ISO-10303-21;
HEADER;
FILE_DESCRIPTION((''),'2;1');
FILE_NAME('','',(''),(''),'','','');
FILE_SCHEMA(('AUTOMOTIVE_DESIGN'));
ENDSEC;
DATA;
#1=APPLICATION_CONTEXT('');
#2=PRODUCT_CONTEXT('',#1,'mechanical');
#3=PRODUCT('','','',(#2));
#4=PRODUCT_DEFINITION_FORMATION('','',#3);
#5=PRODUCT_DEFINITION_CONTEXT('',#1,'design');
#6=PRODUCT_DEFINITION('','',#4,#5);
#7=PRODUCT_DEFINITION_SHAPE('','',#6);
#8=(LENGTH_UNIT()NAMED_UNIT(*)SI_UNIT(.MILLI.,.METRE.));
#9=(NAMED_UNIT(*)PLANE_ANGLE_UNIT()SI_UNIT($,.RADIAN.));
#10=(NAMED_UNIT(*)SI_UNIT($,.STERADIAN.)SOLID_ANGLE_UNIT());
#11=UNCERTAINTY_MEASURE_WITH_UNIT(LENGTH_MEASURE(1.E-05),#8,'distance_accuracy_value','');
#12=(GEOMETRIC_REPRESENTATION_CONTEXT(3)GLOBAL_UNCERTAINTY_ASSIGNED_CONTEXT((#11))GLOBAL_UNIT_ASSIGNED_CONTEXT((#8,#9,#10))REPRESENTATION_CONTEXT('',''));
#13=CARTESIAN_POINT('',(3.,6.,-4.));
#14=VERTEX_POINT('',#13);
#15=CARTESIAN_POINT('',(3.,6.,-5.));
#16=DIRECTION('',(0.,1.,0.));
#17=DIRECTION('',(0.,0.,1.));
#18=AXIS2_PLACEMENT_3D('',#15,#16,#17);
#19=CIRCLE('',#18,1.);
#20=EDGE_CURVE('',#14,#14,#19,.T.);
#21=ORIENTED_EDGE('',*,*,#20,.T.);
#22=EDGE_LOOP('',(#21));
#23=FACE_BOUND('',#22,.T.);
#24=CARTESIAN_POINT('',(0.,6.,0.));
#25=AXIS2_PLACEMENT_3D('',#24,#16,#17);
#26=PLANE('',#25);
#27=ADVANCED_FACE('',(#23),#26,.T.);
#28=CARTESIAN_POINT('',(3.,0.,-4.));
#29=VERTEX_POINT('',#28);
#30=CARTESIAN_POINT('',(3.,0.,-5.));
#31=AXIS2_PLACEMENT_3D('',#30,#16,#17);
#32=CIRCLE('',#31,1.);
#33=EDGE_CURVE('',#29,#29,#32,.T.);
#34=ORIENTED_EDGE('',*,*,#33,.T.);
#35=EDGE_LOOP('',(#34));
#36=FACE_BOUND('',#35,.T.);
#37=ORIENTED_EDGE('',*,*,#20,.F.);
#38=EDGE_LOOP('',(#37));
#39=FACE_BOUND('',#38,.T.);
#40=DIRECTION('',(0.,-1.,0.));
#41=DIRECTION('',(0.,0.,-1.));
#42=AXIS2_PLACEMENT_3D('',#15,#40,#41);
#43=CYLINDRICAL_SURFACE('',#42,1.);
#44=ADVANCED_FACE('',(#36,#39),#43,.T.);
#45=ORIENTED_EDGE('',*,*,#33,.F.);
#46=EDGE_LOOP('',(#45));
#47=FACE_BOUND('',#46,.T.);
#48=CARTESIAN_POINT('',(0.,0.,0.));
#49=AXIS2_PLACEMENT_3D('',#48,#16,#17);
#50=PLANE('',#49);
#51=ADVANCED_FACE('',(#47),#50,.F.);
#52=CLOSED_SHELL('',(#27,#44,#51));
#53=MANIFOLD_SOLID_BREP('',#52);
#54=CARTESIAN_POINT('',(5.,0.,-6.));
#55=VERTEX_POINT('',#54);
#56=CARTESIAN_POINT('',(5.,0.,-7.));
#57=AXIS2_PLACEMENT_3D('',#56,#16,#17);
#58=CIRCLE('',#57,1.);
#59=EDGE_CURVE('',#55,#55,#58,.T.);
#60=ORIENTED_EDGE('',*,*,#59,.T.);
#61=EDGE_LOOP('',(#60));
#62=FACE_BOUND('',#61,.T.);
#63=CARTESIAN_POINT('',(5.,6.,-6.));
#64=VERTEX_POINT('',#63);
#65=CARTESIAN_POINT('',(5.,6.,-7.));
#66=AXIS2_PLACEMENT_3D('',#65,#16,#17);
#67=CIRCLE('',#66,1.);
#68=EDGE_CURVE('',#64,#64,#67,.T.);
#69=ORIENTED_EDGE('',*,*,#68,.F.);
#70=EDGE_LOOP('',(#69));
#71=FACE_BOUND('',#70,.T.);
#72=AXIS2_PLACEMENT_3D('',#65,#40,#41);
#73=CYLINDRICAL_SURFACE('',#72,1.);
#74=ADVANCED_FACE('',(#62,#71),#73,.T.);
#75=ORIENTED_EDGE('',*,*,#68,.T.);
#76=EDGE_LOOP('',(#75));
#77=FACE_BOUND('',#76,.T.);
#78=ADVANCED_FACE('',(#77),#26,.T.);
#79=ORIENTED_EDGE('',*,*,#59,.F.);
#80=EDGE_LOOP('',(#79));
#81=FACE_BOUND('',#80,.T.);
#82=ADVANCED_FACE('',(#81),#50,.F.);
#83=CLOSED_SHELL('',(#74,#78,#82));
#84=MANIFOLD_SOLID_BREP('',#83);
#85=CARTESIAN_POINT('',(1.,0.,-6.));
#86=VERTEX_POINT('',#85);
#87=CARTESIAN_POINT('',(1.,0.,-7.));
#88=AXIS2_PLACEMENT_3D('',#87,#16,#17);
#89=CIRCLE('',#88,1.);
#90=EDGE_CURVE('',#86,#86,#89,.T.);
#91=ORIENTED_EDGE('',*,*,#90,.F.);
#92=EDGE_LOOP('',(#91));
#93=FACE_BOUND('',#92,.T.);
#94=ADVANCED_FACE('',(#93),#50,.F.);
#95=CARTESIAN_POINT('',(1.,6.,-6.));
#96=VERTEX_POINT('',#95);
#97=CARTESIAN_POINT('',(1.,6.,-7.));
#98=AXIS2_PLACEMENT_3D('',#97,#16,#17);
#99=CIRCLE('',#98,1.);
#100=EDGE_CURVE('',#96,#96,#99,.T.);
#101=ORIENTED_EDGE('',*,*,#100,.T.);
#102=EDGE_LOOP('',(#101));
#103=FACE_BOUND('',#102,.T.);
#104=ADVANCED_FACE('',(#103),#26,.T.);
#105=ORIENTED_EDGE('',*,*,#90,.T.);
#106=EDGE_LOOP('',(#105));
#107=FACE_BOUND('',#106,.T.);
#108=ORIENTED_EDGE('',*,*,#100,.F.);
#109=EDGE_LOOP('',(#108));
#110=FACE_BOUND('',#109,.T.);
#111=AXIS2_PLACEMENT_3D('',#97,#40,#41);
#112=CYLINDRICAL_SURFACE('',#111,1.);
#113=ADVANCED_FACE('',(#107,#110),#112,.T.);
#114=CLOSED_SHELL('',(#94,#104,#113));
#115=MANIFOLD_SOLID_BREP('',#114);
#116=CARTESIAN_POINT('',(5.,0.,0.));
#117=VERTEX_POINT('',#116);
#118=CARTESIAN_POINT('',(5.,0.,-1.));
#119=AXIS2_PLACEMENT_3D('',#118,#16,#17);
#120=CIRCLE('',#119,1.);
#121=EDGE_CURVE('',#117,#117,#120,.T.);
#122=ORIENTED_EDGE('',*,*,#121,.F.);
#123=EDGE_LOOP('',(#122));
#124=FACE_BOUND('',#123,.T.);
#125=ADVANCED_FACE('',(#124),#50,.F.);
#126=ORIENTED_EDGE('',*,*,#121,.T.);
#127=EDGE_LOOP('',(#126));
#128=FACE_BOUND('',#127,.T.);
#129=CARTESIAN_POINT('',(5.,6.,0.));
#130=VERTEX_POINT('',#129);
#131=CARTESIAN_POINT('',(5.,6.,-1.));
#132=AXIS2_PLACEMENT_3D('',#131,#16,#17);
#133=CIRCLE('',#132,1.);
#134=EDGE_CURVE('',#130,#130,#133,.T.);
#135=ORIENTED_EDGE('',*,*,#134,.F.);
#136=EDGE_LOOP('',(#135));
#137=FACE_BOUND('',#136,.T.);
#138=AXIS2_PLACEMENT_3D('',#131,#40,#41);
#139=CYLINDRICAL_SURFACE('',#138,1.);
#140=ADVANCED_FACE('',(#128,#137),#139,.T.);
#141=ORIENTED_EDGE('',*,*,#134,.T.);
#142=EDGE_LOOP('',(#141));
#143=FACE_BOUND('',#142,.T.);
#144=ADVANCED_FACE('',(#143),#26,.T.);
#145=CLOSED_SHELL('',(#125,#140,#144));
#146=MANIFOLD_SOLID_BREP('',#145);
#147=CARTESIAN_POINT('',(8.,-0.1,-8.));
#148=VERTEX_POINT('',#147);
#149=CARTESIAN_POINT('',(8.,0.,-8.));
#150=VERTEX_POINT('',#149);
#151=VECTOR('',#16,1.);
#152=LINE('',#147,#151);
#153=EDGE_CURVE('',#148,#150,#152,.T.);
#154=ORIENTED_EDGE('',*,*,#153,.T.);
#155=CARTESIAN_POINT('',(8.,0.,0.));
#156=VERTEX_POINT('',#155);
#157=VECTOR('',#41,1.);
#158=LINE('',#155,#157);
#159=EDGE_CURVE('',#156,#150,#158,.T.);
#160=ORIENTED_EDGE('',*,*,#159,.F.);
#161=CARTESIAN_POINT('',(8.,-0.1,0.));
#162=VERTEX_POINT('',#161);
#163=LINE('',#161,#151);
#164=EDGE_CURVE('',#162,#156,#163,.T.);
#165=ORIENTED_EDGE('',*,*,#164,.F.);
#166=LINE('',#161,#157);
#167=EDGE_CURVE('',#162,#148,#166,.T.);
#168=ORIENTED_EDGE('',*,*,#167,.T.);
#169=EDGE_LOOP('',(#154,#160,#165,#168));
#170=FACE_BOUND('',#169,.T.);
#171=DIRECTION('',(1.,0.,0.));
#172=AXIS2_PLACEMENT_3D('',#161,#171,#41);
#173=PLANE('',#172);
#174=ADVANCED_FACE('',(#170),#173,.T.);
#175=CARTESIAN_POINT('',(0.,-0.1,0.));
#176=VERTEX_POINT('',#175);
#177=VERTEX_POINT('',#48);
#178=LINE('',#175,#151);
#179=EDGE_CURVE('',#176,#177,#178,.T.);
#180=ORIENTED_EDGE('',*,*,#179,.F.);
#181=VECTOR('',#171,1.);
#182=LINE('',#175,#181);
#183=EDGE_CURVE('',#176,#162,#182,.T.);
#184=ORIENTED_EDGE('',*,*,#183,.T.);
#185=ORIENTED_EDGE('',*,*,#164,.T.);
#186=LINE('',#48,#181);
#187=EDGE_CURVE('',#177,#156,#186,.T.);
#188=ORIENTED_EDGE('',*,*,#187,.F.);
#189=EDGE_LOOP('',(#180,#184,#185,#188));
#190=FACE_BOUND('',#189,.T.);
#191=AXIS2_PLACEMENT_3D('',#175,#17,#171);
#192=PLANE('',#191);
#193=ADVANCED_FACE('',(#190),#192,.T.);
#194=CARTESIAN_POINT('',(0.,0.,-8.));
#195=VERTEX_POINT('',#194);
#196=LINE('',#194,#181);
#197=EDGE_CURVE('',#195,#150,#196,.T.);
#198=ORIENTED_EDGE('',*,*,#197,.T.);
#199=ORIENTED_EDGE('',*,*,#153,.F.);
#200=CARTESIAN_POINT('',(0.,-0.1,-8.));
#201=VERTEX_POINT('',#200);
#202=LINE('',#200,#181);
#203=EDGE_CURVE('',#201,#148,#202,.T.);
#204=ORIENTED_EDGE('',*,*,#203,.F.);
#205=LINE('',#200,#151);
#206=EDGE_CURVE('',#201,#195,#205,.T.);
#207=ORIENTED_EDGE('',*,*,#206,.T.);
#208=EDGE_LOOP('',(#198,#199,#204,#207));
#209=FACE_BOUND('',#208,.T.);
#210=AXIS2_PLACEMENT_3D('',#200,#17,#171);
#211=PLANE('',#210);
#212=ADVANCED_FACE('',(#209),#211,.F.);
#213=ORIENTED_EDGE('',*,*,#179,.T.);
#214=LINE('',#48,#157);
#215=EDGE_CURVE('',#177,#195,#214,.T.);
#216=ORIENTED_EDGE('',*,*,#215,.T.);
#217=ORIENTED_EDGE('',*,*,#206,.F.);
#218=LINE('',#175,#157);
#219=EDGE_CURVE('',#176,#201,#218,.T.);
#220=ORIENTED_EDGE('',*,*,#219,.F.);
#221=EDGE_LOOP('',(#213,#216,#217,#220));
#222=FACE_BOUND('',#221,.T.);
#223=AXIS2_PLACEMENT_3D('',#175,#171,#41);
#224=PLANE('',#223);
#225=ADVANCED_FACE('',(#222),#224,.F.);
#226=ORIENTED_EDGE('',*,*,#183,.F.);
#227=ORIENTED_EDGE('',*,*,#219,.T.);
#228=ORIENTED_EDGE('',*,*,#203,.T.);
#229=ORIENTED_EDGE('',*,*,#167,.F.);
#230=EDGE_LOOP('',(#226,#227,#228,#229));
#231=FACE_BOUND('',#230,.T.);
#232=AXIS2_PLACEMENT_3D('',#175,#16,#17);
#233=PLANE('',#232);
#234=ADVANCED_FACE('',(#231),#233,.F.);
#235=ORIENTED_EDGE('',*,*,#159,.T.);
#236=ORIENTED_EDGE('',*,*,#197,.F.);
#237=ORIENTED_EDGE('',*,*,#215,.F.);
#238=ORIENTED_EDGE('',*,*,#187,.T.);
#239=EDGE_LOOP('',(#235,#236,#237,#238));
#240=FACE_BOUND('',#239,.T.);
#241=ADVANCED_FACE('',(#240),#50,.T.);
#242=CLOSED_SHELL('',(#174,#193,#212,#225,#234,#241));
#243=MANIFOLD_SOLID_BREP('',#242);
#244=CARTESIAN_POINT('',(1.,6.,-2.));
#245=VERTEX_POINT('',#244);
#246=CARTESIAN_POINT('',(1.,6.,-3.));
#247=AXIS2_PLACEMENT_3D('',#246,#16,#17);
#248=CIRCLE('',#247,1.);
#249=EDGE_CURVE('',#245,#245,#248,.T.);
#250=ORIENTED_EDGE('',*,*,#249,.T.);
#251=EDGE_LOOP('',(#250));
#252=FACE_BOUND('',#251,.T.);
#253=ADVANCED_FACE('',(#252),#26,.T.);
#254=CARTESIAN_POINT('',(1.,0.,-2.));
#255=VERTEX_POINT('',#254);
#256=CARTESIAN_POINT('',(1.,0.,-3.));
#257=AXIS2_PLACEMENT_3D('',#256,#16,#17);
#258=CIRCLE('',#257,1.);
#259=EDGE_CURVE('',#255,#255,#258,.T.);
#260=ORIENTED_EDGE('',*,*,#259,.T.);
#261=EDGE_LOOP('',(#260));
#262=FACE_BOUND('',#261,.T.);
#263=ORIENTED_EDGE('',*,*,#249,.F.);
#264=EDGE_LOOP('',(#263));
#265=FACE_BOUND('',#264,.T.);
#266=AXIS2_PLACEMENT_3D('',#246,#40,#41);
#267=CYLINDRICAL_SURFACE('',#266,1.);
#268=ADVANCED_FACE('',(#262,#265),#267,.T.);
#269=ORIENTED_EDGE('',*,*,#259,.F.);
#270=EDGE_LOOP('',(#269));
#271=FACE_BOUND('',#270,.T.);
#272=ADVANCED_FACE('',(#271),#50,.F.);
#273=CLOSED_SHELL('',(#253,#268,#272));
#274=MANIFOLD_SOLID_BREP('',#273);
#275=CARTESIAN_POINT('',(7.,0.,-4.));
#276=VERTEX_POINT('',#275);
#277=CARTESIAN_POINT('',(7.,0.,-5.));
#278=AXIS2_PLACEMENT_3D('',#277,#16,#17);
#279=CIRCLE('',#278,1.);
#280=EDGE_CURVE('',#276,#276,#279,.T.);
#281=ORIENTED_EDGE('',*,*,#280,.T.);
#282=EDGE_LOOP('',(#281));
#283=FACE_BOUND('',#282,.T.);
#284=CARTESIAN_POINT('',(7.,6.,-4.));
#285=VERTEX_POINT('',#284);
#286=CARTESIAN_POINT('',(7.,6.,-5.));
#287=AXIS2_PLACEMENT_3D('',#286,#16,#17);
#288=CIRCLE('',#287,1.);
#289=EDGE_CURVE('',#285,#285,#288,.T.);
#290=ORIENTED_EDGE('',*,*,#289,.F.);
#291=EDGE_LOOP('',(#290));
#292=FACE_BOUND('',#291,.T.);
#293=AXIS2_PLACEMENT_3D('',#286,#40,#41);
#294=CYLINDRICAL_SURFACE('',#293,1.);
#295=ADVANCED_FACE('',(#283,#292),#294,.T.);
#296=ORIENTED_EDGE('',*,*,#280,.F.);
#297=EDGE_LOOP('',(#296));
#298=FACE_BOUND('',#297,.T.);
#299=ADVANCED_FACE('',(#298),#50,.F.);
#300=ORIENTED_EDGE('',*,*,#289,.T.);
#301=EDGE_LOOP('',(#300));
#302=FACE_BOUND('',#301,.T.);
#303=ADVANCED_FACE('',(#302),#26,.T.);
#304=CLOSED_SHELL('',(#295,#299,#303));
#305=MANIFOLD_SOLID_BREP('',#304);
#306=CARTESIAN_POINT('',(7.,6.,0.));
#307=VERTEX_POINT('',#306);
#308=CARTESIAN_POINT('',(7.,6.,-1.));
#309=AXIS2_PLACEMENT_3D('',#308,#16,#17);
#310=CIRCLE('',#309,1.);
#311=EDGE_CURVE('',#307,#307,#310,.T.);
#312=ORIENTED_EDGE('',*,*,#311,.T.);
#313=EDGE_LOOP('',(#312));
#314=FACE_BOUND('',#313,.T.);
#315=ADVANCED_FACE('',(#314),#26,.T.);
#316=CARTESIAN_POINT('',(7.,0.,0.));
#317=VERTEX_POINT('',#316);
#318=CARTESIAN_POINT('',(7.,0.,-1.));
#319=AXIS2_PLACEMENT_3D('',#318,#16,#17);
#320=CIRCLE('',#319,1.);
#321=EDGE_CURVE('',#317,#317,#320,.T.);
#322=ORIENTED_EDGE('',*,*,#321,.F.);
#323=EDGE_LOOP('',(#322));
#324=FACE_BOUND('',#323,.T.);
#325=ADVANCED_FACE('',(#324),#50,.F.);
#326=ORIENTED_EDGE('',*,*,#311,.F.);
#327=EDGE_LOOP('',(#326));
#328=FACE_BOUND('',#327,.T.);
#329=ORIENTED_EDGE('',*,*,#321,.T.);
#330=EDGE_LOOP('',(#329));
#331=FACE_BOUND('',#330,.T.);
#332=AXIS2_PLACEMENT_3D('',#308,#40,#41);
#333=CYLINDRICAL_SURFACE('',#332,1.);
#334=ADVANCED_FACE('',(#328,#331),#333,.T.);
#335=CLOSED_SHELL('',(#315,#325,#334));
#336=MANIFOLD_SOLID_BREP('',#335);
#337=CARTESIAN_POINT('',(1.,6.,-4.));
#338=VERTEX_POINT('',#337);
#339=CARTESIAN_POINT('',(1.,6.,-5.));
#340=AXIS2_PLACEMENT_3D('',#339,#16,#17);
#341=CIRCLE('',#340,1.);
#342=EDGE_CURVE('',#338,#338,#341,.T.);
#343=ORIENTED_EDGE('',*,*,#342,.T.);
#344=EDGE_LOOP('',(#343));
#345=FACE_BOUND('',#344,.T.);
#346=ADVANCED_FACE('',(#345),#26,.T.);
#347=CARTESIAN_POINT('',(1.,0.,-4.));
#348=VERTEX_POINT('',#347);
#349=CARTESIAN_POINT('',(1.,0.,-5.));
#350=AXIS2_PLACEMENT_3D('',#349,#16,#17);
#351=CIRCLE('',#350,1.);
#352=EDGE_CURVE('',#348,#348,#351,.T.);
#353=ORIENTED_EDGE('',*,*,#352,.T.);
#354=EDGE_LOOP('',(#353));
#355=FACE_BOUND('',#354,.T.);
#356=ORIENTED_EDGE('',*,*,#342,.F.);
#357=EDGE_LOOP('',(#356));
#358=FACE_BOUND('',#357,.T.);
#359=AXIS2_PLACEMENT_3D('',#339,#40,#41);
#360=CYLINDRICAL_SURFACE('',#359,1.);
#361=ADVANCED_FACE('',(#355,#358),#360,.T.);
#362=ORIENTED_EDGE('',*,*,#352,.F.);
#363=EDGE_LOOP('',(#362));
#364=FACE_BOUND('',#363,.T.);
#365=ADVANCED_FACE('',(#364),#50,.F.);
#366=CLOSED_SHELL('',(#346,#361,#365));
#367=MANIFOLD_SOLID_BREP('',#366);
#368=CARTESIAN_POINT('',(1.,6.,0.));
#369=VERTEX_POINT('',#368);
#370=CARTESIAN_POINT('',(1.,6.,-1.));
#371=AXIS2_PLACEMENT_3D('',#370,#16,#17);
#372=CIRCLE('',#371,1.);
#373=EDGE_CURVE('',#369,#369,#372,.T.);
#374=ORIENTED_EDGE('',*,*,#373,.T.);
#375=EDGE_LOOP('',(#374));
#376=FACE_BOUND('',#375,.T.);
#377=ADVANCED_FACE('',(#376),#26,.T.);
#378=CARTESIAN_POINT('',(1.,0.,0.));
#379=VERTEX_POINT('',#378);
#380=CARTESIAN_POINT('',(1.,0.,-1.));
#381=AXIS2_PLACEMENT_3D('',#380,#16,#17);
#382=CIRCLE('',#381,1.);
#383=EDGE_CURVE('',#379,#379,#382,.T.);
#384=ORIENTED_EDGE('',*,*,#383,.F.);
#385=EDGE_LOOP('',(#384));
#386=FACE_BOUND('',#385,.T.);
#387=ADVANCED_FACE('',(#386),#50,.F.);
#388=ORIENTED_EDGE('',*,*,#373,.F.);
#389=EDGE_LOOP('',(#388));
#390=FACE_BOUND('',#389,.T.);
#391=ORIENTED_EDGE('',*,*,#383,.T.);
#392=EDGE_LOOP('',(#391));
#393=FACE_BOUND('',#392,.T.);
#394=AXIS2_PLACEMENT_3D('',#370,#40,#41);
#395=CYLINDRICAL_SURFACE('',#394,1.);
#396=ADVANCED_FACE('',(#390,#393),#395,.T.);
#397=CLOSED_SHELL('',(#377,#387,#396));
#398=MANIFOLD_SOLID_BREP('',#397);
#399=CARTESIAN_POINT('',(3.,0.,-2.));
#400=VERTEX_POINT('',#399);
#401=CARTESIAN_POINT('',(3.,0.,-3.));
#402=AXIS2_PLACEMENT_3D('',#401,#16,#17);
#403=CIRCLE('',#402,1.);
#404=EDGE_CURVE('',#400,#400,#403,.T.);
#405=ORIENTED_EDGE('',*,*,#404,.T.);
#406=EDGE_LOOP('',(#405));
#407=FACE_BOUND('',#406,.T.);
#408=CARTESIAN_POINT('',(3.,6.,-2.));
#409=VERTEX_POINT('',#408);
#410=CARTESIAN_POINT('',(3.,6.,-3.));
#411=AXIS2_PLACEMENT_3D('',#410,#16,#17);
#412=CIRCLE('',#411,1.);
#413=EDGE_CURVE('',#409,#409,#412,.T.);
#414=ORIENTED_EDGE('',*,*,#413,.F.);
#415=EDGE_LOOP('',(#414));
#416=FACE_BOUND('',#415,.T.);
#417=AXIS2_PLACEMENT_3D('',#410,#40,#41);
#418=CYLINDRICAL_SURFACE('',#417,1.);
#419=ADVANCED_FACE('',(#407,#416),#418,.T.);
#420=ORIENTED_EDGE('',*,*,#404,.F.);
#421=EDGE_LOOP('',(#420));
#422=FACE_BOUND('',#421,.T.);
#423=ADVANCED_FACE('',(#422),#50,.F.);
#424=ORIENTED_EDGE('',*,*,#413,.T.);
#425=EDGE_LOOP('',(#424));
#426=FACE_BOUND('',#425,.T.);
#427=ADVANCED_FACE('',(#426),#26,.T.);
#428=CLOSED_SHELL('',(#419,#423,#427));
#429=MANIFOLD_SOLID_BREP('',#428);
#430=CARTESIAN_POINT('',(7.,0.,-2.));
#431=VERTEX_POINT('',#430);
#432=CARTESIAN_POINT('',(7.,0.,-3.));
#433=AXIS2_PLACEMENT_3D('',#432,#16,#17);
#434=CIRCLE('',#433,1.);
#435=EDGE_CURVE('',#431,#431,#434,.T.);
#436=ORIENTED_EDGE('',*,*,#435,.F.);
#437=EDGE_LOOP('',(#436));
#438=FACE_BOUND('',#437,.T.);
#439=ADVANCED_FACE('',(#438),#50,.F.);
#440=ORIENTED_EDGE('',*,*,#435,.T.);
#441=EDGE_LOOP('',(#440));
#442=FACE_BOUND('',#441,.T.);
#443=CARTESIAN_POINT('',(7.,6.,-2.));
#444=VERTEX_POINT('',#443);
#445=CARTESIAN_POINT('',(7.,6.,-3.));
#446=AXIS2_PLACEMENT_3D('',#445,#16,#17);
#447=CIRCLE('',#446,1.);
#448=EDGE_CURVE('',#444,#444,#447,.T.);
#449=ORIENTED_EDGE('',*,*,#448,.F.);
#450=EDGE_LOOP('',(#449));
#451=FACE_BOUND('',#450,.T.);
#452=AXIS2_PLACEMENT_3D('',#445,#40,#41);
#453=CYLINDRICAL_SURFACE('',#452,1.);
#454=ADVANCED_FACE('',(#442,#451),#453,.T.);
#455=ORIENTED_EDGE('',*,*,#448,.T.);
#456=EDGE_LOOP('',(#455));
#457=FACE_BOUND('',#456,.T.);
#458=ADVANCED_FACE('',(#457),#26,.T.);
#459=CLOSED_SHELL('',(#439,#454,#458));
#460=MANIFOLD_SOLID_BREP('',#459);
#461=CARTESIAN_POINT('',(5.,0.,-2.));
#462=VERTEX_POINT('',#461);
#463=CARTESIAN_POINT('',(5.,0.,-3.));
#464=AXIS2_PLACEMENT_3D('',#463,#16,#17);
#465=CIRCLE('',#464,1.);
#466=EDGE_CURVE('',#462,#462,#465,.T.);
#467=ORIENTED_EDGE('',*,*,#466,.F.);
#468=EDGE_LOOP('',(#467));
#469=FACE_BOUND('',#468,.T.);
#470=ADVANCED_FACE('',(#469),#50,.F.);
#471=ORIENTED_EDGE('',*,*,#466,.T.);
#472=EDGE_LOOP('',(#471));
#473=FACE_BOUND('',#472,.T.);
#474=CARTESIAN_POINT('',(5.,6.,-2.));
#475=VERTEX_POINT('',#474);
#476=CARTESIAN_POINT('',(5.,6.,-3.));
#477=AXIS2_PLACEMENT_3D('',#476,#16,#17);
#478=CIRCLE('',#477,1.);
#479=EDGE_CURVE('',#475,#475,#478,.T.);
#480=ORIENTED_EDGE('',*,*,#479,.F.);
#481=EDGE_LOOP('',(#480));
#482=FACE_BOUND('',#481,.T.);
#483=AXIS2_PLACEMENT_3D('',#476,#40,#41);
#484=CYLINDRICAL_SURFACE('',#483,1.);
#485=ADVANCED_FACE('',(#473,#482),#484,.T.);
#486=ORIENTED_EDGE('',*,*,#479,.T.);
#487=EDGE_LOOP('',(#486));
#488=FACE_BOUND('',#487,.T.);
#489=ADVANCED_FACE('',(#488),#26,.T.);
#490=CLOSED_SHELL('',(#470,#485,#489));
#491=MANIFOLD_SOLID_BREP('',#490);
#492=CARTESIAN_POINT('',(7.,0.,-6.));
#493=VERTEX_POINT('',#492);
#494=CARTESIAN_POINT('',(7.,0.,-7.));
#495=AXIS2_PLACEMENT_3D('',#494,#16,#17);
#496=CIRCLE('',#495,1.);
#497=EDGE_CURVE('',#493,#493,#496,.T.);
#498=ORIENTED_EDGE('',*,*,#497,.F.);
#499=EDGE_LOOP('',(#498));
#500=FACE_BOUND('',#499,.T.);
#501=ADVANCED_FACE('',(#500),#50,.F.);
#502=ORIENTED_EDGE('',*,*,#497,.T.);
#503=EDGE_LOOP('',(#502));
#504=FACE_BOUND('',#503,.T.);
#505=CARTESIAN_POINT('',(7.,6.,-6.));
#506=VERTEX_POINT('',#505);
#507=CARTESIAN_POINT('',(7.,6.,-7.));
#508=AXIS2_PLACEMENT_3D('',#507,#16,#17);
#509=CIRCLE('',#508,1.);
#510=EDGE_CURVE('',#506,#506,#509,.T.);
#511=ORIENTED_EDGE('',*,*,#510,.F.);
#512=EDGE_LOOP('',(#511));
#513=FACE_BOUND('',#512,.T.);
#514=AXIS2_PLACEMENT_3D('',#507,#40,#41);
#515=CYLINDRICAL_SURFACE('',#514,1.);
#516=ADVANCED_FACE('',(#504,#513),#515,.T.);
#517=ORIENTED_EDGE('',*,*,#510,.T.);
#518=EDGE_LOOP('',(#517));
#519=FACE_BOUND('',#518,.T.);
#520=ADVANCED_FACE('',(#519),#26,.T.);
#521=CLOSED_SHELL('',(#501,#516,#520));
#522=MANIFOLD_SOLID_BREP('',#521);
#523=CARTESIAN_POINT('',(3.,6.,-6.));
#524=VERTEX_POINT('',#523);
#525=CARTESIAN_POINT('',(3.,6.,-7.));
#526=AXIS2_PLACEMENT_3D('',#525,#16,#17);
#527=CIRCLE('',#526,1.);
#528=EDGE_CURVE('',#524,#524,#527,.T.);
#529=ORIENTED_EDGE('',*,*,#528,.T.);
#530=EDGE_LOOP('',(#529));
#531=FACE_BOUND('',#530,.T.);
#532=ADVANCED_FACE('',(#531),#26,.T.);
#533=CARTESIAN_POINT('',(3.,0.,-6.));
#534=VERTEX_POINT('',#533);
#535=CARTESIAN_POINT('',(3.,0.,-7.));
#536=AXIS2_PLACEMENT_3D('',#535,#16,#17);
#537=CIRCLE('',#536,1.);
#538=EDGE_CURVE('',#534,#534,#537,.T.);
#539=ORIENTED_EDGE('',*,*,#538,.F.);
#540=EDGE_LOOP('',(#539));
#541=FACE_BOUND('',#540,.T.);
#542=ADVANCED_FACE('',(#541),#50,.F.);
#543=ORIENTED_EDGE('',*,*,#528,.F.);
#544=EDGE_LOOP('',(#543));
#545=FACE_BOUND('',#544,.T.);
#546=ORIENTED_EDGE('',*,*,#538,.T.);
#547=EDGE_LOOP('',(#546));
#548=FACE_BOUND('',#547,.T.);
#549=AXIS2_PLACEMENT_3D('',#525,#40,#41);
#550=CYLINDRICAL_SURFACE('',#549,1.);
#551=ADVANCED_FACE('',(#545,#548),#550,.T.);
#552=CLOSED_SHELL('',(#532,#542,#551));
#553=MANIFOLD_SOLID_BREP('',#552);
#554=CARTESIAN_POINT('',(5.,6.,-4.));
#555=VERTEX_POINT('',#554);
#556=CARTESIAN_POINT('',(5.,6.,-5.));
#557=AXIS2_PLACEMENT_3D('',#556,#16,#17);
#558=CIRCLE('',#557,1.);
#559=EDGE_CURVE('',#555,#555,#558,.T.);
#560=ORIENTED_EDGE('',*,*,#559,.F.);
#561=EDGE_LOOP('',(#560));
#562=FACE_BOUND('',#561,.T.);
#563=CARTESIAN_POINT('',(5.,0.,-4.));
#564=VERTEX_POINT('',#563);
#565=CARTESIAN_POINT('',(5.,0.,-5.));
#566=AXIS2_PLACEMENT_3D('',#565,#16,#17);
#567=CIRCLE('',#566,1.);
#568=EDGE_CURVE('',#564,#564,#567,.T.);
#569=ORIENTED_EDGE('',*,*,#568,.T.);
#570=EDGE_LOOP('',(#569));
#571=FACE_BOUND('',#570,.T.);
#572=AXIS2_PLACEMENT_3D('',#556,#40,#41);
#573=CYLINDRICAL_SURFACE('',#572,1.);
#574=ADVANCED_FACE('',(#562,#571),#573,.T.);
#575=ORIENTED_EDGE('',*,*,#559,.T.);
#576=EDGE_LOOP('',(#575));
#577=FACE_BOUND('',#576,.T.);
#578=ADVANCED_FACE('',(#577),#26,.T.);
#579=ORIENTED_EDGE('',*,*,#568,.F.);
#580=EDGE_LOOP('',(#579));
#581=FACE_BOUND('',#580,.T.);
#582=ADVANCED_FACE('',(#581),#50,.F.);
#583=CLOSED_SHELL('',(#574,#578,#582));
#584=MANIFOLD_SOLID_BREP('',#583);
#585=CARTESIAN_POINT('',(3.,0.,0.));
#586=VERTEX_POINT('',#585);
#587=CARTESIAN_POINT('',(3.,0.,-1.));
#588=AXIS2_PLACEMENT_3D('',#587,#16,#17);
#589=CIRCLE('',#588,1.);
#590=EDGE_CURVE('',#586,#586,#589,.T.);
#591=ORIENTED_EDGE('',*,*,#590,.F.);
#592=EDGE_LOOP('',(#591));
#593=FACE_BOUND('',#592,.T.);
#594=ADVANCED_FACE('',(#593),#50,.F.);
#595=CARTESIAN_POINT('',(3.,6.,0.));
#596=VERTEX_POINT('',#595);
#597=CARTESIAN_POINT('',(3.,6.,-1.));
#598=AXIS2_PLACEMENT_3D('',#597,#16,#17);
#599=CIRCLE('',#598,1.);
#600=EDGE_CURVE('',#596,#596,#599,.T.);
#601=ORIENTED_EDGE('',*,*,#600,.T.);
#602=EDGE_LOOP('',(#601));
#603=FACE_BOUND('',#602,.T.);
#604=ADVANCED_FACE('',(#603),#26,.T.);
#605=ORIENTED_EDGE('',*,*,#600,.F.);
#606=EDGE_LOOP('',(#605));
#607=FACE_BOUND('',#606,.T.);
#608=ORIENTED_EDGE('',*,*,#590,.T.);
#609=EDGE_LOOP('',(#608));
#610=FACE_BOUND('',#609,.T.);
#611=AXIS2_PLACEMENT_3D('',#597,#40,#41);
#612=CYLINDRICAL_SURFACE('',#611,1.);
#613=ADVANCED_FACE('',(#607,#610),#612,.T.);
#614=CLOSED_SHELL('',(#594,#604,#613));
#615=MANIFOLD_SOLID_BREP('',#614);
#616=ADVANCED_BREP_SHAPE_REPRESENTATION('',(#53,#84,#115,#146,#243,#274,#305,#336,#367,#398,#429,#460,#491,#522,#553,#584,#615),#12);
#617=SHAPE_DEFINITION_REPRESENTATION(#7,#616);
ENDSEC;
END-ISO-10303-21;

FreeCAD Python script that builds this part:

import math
import FreeCAD as App
import Part
import Sketcher
Q = App.Units.Quantity

doc = App.newDocument("Part")
params = doc.addObject("Spreadsheet::Sheet", "Params")
for row, (alias, value) in enumerate([
    ("sketch1_width", "8 mm"),
    ("pad1_length", "0.1 mm"),
    ("sketch2_radius", "1 mm"),
    ("pad2_length", "6 mm"),
    ("sketch3_radius", "1 mm"),
    ("pad3_length", "6 mm"),
    ("sketch4_radius", "1 mm"),
    ("pad4_length", "6 mm"),
    ("sketch5_radius", "1 mm"),
    ("pad5_length", "6 mm"),
    ("sketch6_radius", "1 mm"),
    ("pad6_length", "6 mm"),
    ("sketch7_radius", "1 mm"),
    ("pad7_length", "6 mm"),
    ("sketch8_radius", "1 mm"),
    ("pad8_length", "6 mm"),
    ("sketch9_radius", "1 mm"),
    ("pad9_length", "6 mm"),
    ("sketch10_radius", "1 mm"),
    ("pad10_length", "6 mm"),
    ("sketch11_radius", "1 mm"),
    ("pad11_length", "6 mm"),
    ("sketch12_radius", "1 mm"),
    ("pad12_length", "6 mm"),
    ("sketch13_radius", "1 mm"),
    ("pad13_length", "6 mm"),
    ("sketch14_radius", "1 mm"),
    ("pad14_length", "6 mm"),
    ("sketch15_radius", "1 mm"),
    ("pad15_length", "6 mm"),
    ("sketch16_radius", "1 mm"),
    ("pad16_length", "6 mm"),
    ("sketch17_radius", "1 mm"),
    ("pad17_length", "6 mm"),
], start=1):
    params.set(f"A{row}", alias)
    params.set(f"B{row}", "=" + value)
    params.setAlias(f"B{row}", alias)

body = doc.addObject("PartDesign::Body", "Body")

# Sketch on XZ plane
sketch1 = body.newObject("Sketcher::SketchObject", "Sketch")
sketch1.AttachmentSupport = (doc.getObject("XZ_Plane"), [""])
sketch1.MapMode = "FlatFace"
sketch1.addGeometry([
    Part.LineSegment(App.Vector(8, 0, 0), App.Vector(8, -8, 0)),
    Part.LineSegment(App.Vector(8, -8, 0), App.Vector(0, -8, 0)),
    Part.LineSegment(App.Vector(0, -8, 0), App.Vector(0, 0, 0)),
    Part.LineSegment(App.Vector(0, 0, 0), App.Vector(8, 0, 0)),
], False)
sketch1.addConstraint([
    Sketcher.Constraint("Coincident", 0, 2, 1, 1),
    Sketcher.Constraint("Coincident", 1, 2, 2, 1),
    Sketcher.Constraint("Coincident", 2, 2, 3, 1),
    Sketcher.Constraint("Coincident", 3, 2, 0, 1),
    Sketcher.Constraint("Vertical", 0),
    Sketcher.Constraint("Horizontal", 1),
    Sketcher.Constraint("Vertical", 2),
    Sketcher.Constraint("Horizontal", 3),
    Sketcher.Constraint("Coincident", 2, 2, -1, 1),
    Sketcher.Constraint("Equal", 3, 0),
    Sketcher.Constraint("DistanceX", 1, 2, 1, 1, Q("8 mm")),
])
sketch1.setExpression("Constraints[10]", "Params.sketch1_width")
pad1 = body.newObject("PartDesign::Pad", "Pad")
pad1.Profile = sketch1
pad1.setExpression("Length", "Params.pad1_length")
body2 = doc.addObject("PartDesign::Body", "Body001")

# Sketch on XZ plane
sketch2 = body2.newObject("Sketcher::SketchObject", "Sketch001")
sketch2.AttachmentSupport = (doc.getObject("XZ_Plane001"), [""])
sketch2.MapMode = "FlatFace"
sketch2.addGeometry([
    Part.ArcOfCircle(Part.Circle(App.Vector(1, -1, 0), App.Vector(0, 0, 1), 1), math.radians(-90), math.radians(0)),
    Part.ArcOfCircle(Part.Circle(App.Vector(1, -1, 0), App.Vector(0, 0, 1), 1), math.radians(0), math.radians(270)),
], False)
sketch2.addConstraint([
    Sketcher.Constraint("Tangent", 0, 1, 1, 2),
    Sketcher.Constraint("Coincident", 1, 1, 0, 2),
    Sketcher.Constraint("Horizontal", 0, 3, 1, 1),
    Sketcher.Constraint("Vertical", 1, 3, 0, 1),
    Sketcher.Constraint("Radius", 0, Q("1 mm")),
    Sketcher.Constraint("DistanceX", -1, 1, 0, 3, Q("1 mm")),
    Sketcher.Constraint("DistanceY", 0, 3, -1, 1, Q("1 mm")),
])
sketch2.setExpression("Constraints[4]", "Params.sketch2_radius")
pad2 = body2.newObject("PartDesign::Pad", "Pad001")
pad2.Profile = sketch2
pad2.setExpression("Length", "Params.pad2_length")
pad2.Reversed = True
body3 = doc.addObject("PartDesign::Body", "Body002")

# Sketch on XZ plane
sketch3 = body3.newObject("Sketcher::SketchObject", "Sketch002")
sketch3.AttachmentSupport = (doc.getObject("XZ_Plane002"), [""])
sketch3.MapMode = "FlatFace"
sketch3.addGeometry([
    Part.ArcOfCircle(Part.Circle(App.Vector(3, -1, 0), App.Vector(0, 0, 1), 1), math.radians(0), math.radians(180)),
    Part.ArcOfCircle(Part.Circle(App.Vector(3, -1, 0), App.Vector(0, 0, 1), 1), math.radians(-90), math.radians(0)),
    Part.ArcOfCircle(Part.Circle(App.Vector(3, -1, 0), App.Vector(0, 0, 1), 1), math.radians(-180), math.radians(-90)),
], False)
sketch3.addConstraint([
    Sketcher.Constraint("Tangent", 0, 1, 1, 2),
    Sketcher.Constraint("Tangent", 1, 1, 2, 2),
    Sketcher.Constraint("Tangent", 2, 1, 0, 2),
    Sketcher.Constraint("Horizontal", 2, 3, 0, 1),
    Sketcher.Constraint("Horizontal", 0, 1, 2, 1),
    Sketcher.Constraint("Vertical", 2, 3, 1, 1),
    Sketcher.Constraint("Radius", 0, Q("1 mm")),
    Sketcher.Constraint("DistanceX", -1, 1, 0, 3, Q("3 mm")),
    Sketcher.Constraint("DistanceY", 0, 3, -1, 1, Q("1 mm")),
])
sketch3.setExpression("Constraints[6]", "Params.sketch3_radius")
pad3 = body3.newObject("PartDesign::Pad", "Pad002")
pad3.Profile = sketch3
pad3.setExpression("Length", "Params.pad3_length")
pad3.Reversed = True
body4 = doc.addObject("PartDesign::Body", "Body003")

# Sketch on XZ plane
sketch4 = body4.newObject("Sketcher::SketchObject", "Sketch003")
sketch4.AttachmentSupport = (doc.getObject("XZ_Plane003"), [""])
sketch4.MapMode = "FlatFace"
sketch4.addGeometry([
    Part.ArcOfCircle(Part.Circle(App.Vector(1, -3, 0), App.Vector(0, 0, 1), 1), math.radians(0), math.radians(90)),
    Part.ArcOfCircle(Part.Circle(App.Vector(1, -3, 0), App.Vector(0, 0, 1), 1), math.radians(-90), math.radians(0)),
    Part.ArcOfCircle(Part.Circle(App.Vector(1, -3, 0), App.Vector(0, 0, 1), 1), math.radians(90), math.radians(270)),
], False)
sketch4.addConstraint([
    Sketcher.Constraint("Tangent", 0, 1, 1, 2),
    Sketcher.Constraint("Tangent", 1, 1, 2, 2),
    Sketcher.Constraint("Tangent", 2, 1, 0, 2),
    Sketcher.Constraint("Horizontal", 2, 3, 0, 1),
    Sketcher.Constraint("Vertical", 2, 3, 1, 1),
    Sketcher.Constraint("Vertical", 1, 1, 2, 1),
    Sketcher.Constraint("Radius", 0, Q("1 mm")),
    Sketcher.Constraint("DistanceX", -1, 1, 0, 3, Q("1 mm")),
    Sketcher.Constraint("DistanceY", 0, 3, -1, 1, Q("3 mm")),
])
sketch4.setExpression("Constraints[6]", "Params.sketch4_radius")
pad4 = body4.newObject("PartDesign::Pad", "Pad003")
pad4.Profile = sketch4
pad4.setExpression("Length", "Params.pad4_length")
pad4.Reversed = True
body5 = doc.addObject("PartDesign::Body", "Body004")

# Sketch on XZ plane
sketch5 = body5.newObject("Sketcher::SketchObject", "Sketch004")
sketch5.AttachmentSupport = (doc.getObject("XZ_Plane004"), [""])
sketch5.MapMode = "FlatFace"
sketch5.addGeometry([
    Part.ArcOfCircle(Part.Circle(App.Vector(5, -1, 0), App.Vector(0, 0, 1), 1), math.radians(0), math.radians(180)),
    Part.ArcOfCircle(Part.Circle(App.Vector(5, -1, 0), App.Vector(0, 0, 1), 1), math.radians(-90), math.radians(0)),
    Part.ArcOfCircle(Part.Circle(App.Vector(5, -1, 0), App.Vector(0, 0, 1), 1), math.radians(-180), math.radians(-90)),
], False)
sketch5.addConstraint([
    Sketcher.Constraint("Tangent", 0, 1, 1, 2),
    Sketcher.Constraint("Tangent", 1, 1, 2, 2),
    Sketcher.Constraint("Tangent", 2, 1, 0, 2),
    Sketcher.Constraint("Horizontal", 2, 3, 0, 1),
    Sketcher.Constraint("Horizontal", 0, 1, 2, 1),
    Sketcher.Constraint("Vertical", 2, 3, 1, 1),
    Sketcher.Constraint("Radius", 0, Q("1 mm")),
    Sketcher.Constraint("DistanceX", -1, 1, 0, 3, Q("5 mm")),
    Sketcher.Constraint("DistanceY", 0, 3, -1, 1, Q("1 mm")),
])
sketch5.setExpression("Constraints[6]", "Params.sketch5_radius")
pad5 = body5.newObject("PartDesign::Pad", "Pad004")
pad5.Profile = sketch5
pad5.setExpression("Length", "Params.pad5_length")
pad5.Reversed = True
body6 = doc.addObject("PartDesign::Body", "Body005")

# Sketch on XZ plane
sketch6 = body6.newObject("Sketcher::SketchObject", "Sketch005")
sketch6.AttachmentSupport = (doc.getObject("XZ_Plane005"), [""])
sketch6.MapMode = "FlatFace"
sketch6.addGeometry([
    Part.ArcOfCircle(Part.Circle(App.Vector(3, -3, 0), App.Vector(0, 0, 1), 1), math.radians(90), math.radians(180)),
    Part.ArcOfCircle(Part.Circle(App.Vector(3, -3, 0), App.Vector(0, 0, 1), 1), math.radians(0), math.radians(90)),
    Part.ArcOfCircle(Part.Circle(App.Vector(3, -3, 0), App.Vector(0, 0, 1), 1), math.radians(-90), math.radians(0)),
    Part.ArcOfCircle(Part.Circle(App.Vector(3, -3, 0), App.Vector(0, 0, 1), 1), math.radians(-180), math.radians(-90)),
], False)
sketch6.addConstraint([
    Sketcher.Constraint("Tangent", 0, 1, 1, 2),
    Sketcher.Constraint("Tangent", 1, 1, 2, 2),
    Sketcher.Constraint("Tangent", 2, 1, 3, 2),
    Sketcher.Constraint("Tangent", 3, 1, 0, 2),
    Sketcher.Constraint("Equal", 0, 1),
    Sketcher.Constraint("Horizontal", 3, 3, 1, 1),
    Sketcher.Constraint("Horizontal", 1, 1, 3, 1),
    Sketcher.Constraint("Vertical", 3, 3, 0, 1),
    Sketcher.Constraint("Vertical", 0, 1, 2, 1),
    Sketcher.Constraint("Radius", 0, Q("1 mm")),
    Sketcher.Constraint("DistanceX", -1, 1, 0, 3, Q("3 mm")),
    Sketcher.Constraint("DistanceY", 0, 3, -1, 1, Q("3 mm")),
])
sketch6.setExpression("Constraints[9]", "Params.sketch6_radius")
pad6 = body6.newObject("PartDesign::Pad", "Pad005")
pad6.Profile = sketch6
pad6.setExpression("Length", "Params.pad6_length")
pad6.Reversed = True
body7 = doc.addObject("PartDesign::Body", "Body006")

# Sketch on XZ plane
sketch7 = body7.newObject("Sketcher::SketchObject", "Sketch006")
sketch7.AttachmentSupport = (doc.getObject("XZ_Plane006"), [""])
sketch7.MapMode = "FlatFace"
sketch7.addGeometry([
    Part.ArcOfCircle(Part.Circle(App.Vector(1, -5, 0), App.Vector(0, 0, 1), 1), math.radians(0), math.radians(90)),
    Part.ArcOfCircle(Part.Circle(App.Vector(1, -5, 0), App.Vector(0, 0, 1), 1), math.radians(-90), math.radians(0)),
    Part.ArcOfCircle(Part.Circle(App.Vector(1, -5, 0), App.Vector(0, 0, 1), 1), math.radians(90), math.radians(270)),
], False)
sketch7.addConstraint([
    Sketcher.Constraint("Tangent", 0, 1, 1, 2),
    Sketcher.Constraint("Tangent", 1, 1, 2, 2),
    Sketcher.Constraint("Tangent", 2, 1, 0, 2),
    Sketcher.Constraint("Horizontal", 2, 3, 0, 1),
    Sketcher.Constraint("Vertical", 2, 3, 1, 1),
    Sketcher.Constraint("Vertical", 1, 1, 2, 1),
    Sketcher.Constraint("Radius", 0, Q("1 mm")),
    Sketcher.Constraint("DistanceX", -1, 1, 0, 3, Q("1 mm")),
    Sketcher.Constraint("DistanceY", 0, 3, -1, 1, Q("5 mm")),
])
sketch7.setExpression("Constraints[6]", "Params.sketch7_radius")
pad7 = body7.newObject("PartDesign::Pad", "Pad006")
pad7.Profile = sketch7
pad7.setExpression("Length", "Params.pad7_length")
pad7.Reversed = True
body8 = doc.addObject("PartDesign::Body", "Body007")

# Sketch on XZ plane
sketch8 = body8.newObject("Sketcher::SketchObject", "Sketch007")
sketch8.AttachmentSupport = (doc.getObject("XZ_Plane007"), [""])
sketch8.MapMode = "FlatFace"
sketch8.addGeometry([
    Part.ArcOfCircle(Part.Circle(App.Vector(7, -1, 0), App.Vector(0, 0, 1), 1), math.radians(-90), math.radians(180)),
    Part.ArcOfCircle(Part.Circle(App.Vector(7, -1, 0), App.Vector(0, 0, 1), 1), math.radians(-180), math.radians(-90)),
], False)
sketch8.addConstraint([
    Sketcher.Constraint("Tangent", 0, 1, 1, 2),
    Sketcher.Constraint("Coincident", 1, 1, 0, 2),
    Sketcher.Constraint("Horizontal", 0, 3, 1, 1),
    Sketcher.Constraint("Vertical", 1, 3, 0, 1),
    Sketcher.Constraint("Radius", 0, Q("1 mm")),
    Sketcher.Constraint("DistanceX", -1, 1, 0, 3, Q("7 mm")),
    Sketcher.Constraint("DistanceY", 0, 3, -1, 1, Q("1 mm")),
])
sketch8.setExpression("Constraints[4]", "Params.sketch8_radius")
pad8 = body8.newObject("PartDesign::Pad", "Pad007")
pad8.Profile = sketch8
pad8.setExpression("Length", "Params.pad8_length")
pad8.Reversed = True
body9 = doc.addObject("PartDesign::Body", "Body008")

# Sketch on XZ plane
sketch9 = body9.newObject("Sketcher::SketchObject", "Sketch008")
sketch9.AttachmentSupport = (doc.getObject("XZ_Plane008"), [""])
sketch9.MapMode = "FlatFace"
sketch9.addGeometry([
    Part.ArcOfCircle(Part.Circle(App.Vector(5, -3, 0), App.Vector(0, 0, 1), 1), math.radians(90), math.radians(180)),
    Part.ArcOfCircle(Part.Circle(App.Vector(5, -3, 0), App.Vector(0, 0, 1), 1), math.radians(0), math.radians(90)),
    Part.ArcOfCircle(Part.Circle(App.Vector(5, -3, 0), App.Vector(0, 0, 1), 1), math.radians(-90), math.radians(0)),
    Part.ArcOfCircle(Part.Circle(App.Vector(5, -3, 0), App.Vector(0, 0, 1), 1), math.radians(-180), math.radians(-90)),
], False)
sketch9.addConstraint([
    Sketcher.Constraint("Tangent", 0, 1, 1, 2),
    Sketcher.Constraint("Tangent", 1, 1, 2, 2),
    Sketcher.Constraint("Tangent", 2, 1, 3, 2),
    Sketcher.Constraint("Tangent", 3, 1, 0, 2),
    Sketcher.Constraint("Equal", 0, 1),
    Sketcher.Constraint("Horizontal", 3, 3, 1, 1),
    Sketcher.Constraint("Horizontal", 1, 1, 3, 1),
    Sketcher.Constraint("Vertical", 3, 3, 0, 1),
    Sketcher.Constraint("Vertical", 0, 1, 2, 1),
    Sketcher.Constraint("Radius", 0, Q("1 mm")),
    Sketcher.Constraint("DistanceX", -1, 1, 0, 3, Q("5 mm")),
    Sketcher.Constraint("DistanceY", 0, 3, -1, 1, Q("3 mm")),
])
sketch9.setExpression("Constraints[9]", "Params.sketch9_radius")
pad9 = body9.newObject("PartDesign::Pad", "Pad008")
pad9.Profile = sketch9
pad9.setExpression("Length", "Params.pad9_length")
pad9.Reversed = True
body10 = doc.addObject("PartDesign::Body", "Body009")

# Sketch on XZ plane
sketch10 = body10.newObject("Sketcher::SketchObject", "Sketch009")
sketch10.AttachmentSupport = (doc.getObject("XZ_Plane009"), [""])
sketch10.MapMode = "FlatFace"
sketch10.addGeometry([
    Part.ArcOfCircle(Part.Circle(App.Vector(1, -7, 0), App.Vector(0, 0, 1), 1), math.radians(0), math.radians(90)),
    Part.ArcOfCircle(Part.Circle(App.Vector(1, -7, 0), App.Vector(0, 0, 1), 1), math.radians(90), math.radians(360)),
], False)
sketch10.addConstraint([
    Sketcher.Constraint("Tangent", 0, 1, 1, 2),
    Sketcher.Constraint("Coincident", 1, 1, 0, 2),
    Sketcher.Constraint("Horizontal", 1, 3, 0, 1),
    Sketcher.Constraint("Vertical", 0, 3, 1, 1),
    Sketcher.Constraint("Radius", 0, Q("1 mm")),
    Sketcher.Constraint("DistanceX", -1, 1, 0, 3, Q("1 mm")),
    Sketcher.Constraint("DistanceY", 0, 3, -1, 1, Q("7 mm")),
])
sketch10.setExpression("Constraints[4]", "Params.sketch10_radius")
pad10 = body10.newObject("PartDesign::Pad", "Pad009")
pad10.Profile = sketch10
pad10.setExpression("Length", "Params.pad10_length")
pad10.Reversed = True
body11 = doc.addObject("PartDesign::Body", "Body010")

# Sketch on XZ plane
sketch11 = body11.newObject("Sketcher::SketchObject", "Sketch010")
sketch11.AttachmentSupport = (doc.getObject("XZ_Plane010"), [""])
sketch11.MapMode = "FlatFace"
sketch11.addGeometry([
    Part.ArcOfCircle(Part.Circle(App.Vector(3, -5, 0), App.Vector(0, 0, 1), 1), math.radians(0), math.radians(90)),
    Part.ArcOfCircle(Part.Circle(App.Vector(3, -5, 0), App.Vector(0, 0, 1), 1), math.radians(-90), math.radians(0)),
    Part.ArcOfCircle(Part.Circle(App.Vector(3, -5, 0), App.Vector(0, 0, 1), 1), math.radians(-180), math.radians(-90)),
    Part.ArcOfCircle(Part.Circle(App.Vector(3, -5, 0), App.Vector(0, 0, 1), 1), math.radians(90), math.radians(180)),
], False)
sketch11.addConstraint([
    Sketcher.Constraint("Tangent", 0, 1, 1, 2),
    Sketcher.Constraint("Tangent", 1, 1, 2, 2),
    Sketcher.Constraint("Tangent", 2, 1, 3, 2),
    Sketcher.Constraint("Tangent", 3, 1, 0, 2),
    Sketcher.Constraint("Equal", 0, 1),
    Sketcher.Constraint("Horizontal", 3, 3, 0, 1),
    Sketcher.Constraint("Horizontal", 0, 1, 2, 1),
    Sketcher.Constraint("Vertical", 3, 3, 1, 1),
    Sketcher.Constraint("Vertical", 1, 1, 3, 1),
    Sketcher.Constraint("Radius", 0, Q("1 mm")),
    Sketcher.Constraint("DistanceX", -1, 1, 0, 3, Q("3 mm")),
    Sketcher.Constraint("DistanceY", 0, 3, -1, 1, Q("5 mm")),
])
sketch11.setExpression("Constraints[9]", "Params.sketch11_radius")
pad11 = body11.newObject("PartDesign::Pad", "Pad010")
pad11.Profile = sketch11
pad11.setExpression("Length", "Params.pad11_length")
pad11.Reversed = True
body12 = doc.addObject("PartDesign::Body", "Body011")

# Sketch on XZ plane
sketch12 = body12.newObject("Sketcher::SketchObject", "Sketch011")
sketch12.AttachmentSupport = (doc.getObject("XZ_Plane011"), [""])
sketch12.MapMode = "FlatFace"
sketch12.addGeometry([
    Part.ArcOfCircle(Part.Circle(App.Vector(7, -3, 0), App.Vector(0, 0, 1), 1), math.radians(90), math.radians(180)),
    Part.ArcOfCircle(Part.Circle(App.Vector(7, -3, 0), App.Vector(0, 0, 1), 1), math.radians(-90), math.radians(90)),
    Part.ArcOfCircle(Part.Circle(App.Vector(7, -3, 0), App.Vector(0, 0, 1), 1), math.radians(-180), math.radians(-90)),
], False)
sketch12.addConstraint([
    Sketcher.Constraint("Tangent", 0, 1, 1, 2),
    Sketcher.Constraint("Tangent", 1, 1, 2, 2),
    Sketcher.Constraint("Tangent", 2, 1, 0, 2),
    Sketcher.Constraint("Horizontal", 1, 3, 2, 1),
    Sketcher.Constraint("Vertical", 2, 3, 0, 1),
    Sketcher.Constraint("Vertical", 0, 1, 1, 1),
    Sketcher.Constraint("Radius", 0, Q("1 mm")),
    Sketcher.Constraint("DistanceX", -1, 1, 0, 3, Q("7 mm")),
    Sketcher.Constraint("DistanceY", 0, 3, -1, 1, Q("3 mm")),
])
sketch12.setExpression("Constraints[6]", "Params.sketch12_radius")
pad12 = body12.newObject("PartDesign::Pad", "Pad011")
pad12.Profile = sketch12
pad12.setExpression("Length", "Params.pad12_length")
pad12.Reversed = True
body13 = doc.addObject("PartDesign::Body", "Body012")

# Sketch on XZ plane
sketch13 = body13.newObject("Sketcher::SketchObject", "Sketch012")
sketch13.AttachmentSupport = (doc.getObject("XZ_Plane012"), [""])
sketch13.MapMode = "FlatFace"
sketch13.addGeometry([
    Part.ArcOfCircle(Part.Circle(App.Vector(5, -5, 0), App.Vector(0, 0, 1), 1), math.radians(90), math.radians(180)),
    Part.ArcOfCircle(Part.Circle(App.Vector(5, -5, 0), App.Vector(0, 0, 1), 1), math.radians(0), math.radians(90)),
    Part.ArcOfCircle(Part.Circle(App.Vector(5, -5, 0), App.Vector(0, 0, 1), 1), math.radians(-90), math.radians(0)),
    Part.ArcOfCircle(Part.Circle(App.Vector(5, -5, 0), App.Vector(0, 0, 1), 1), math.radians(-180), math.radians(-90)),
], False)
sketch13.addConstraint([
    Sketcher.Constraint("Tangent", 0, 1, 1, 2),
    Sketcher.Constraint("Tangent", 1, 1, 2, 2),
    Sketcher.Constraint("Tangent", 2, 1, 3, 2),
    Sketcher.Constraint("Tangent", 3, 1, 0, 2),
    Sketcher.Constraint("Equal", 0, 1),
    Sketcher.Constraint("Horizontal", 3, 3, 1, 1),
    Sketcher.Constraint("Horizontal", 1, 1, 3, 1),
    Sketcher.Constraint("Vertical", 3, 3, 0, 1),
    Sketcher.Constraint("Vertical", 0, 1, 2, 1),
    Sketcher.Constraint("Radius", 0, Q("1 mm")),
    Sketcher.Constraint("DistanceX", -1, 1, 0, 3, Q("5 mm")),
    Sketcher.Constraint("DistanceY", 0, 3, -1, 1, Q("5 mm")),
])
sketch13.setExpression("Constraints[9]", "Params.sketch13_radius")
pad13 = body13.newObject("PartDesign::Pad", "Pad012")
pad13.Profile = sketch13
pad13.setExpression("Length", "Params.pad13_length")
pad13.Reversed = True
body14 = doc.addObject("PartDesign::Body", "Body013")

# Sketch on XZ plane
sketch14 = body14.newObject("Sketcher::SketchObject", "Sketch013")
sketch14.AttachmentSupport = (doc.getObject("XZ_Plane013"), [""])
sketch14.MapMode = "FlatFace"
sketch14.addGeometry([
    Part.ArcOfCircle(Part.Circle(App.Vector(3, -7, 0), App.Vector(0, 0, 1), 1), math.radians(0), math.radians(90)),
    Part.ArcOfCircle(Part.Circle(App.Vector(3, -7, 0), App.Vector(0, 0, 1), 1), math.radians(180), math.radians(360)),
    Part.ArcOfCircle(Part.Circle(App.Vector(3, -7, 0), App.Vector(0, 0, 1), 1), math.radians(90), math.radians(180)),
], False)
sketch14.addConstraint([
    Sketcher.Constraint("Tangent", 0, 1, 1, 2),
    Sketcher.Constraint("Tangent", 1, 1, 2, 2),
    Sketcher.Constraint("Tangent", 2, 1, 0, 2),
    Sketcher.Constraint("Horizontal", 2, 3, 0, 1),
    Sketcher.Constraint("Horizontal", 0, 1, 1, 1),
    Sketcher.Constraint("Vertical", 1, 3, 2, 1),
    Sketcher.Constraint("Radius", 0, Q("1 mm")),
    Sketcher.Constraint("DistanceX", -1, 1, 0, 3, Q("3 mm")),
    Sketcher.Constraint("DistanceY", 0, 3, -1, 1, Q("7 mm")),
])
sketch14.setExpression("Constraints[6]", "Params.sketch14_radius")
pad14 = body14.newObject("PartDesign::Pad", "Pad013")
pad14.Profile = sketch14
pad14.setExpression("Length", "Params.pad14_length")
pad14.Reversed = True
body15 = doc.addObject("PartDesign::Body", "Body014")

# Sketch on XZ plane
sketch15 = body15.newObject("Sketcher::SketchObject", "Sketch014")
sketch15.AttachmentSupport = (doc.getObject("XZ_Plane014"), [""])
sketch15.MapMode = "FlatFace"
sketch15.addGeometry([
    Part.ArcOfCircle(Part.Circle(App.Vector(7, -5, 0), App.Vector(0, 0, 1), 1), math.radians(90), math.radians(180)),
    Part.ArcOfCircle(Part.Circle(App.Vector(7, -5, 0), App.Vector(0, 0, 1), 1), math.radians(-90), math.radians(90)),
    Part.ArcOfCircle(Part.Circle(App.Vector(7, -5, 0), App.Vector(0, 0, 1), 1), math.radians(-180), math.radians(-90)),
], False)
sketch15.addConstraint([
    Sketcher.Constraint("Tangent", 0, 1, 1, 2),
    Sketcher.Constraint("Tangent", 1, 1, 2, 2),
    Sketcher.Constraint("Tangent", 2, 1, 0, 2),
    Sketcher.Constraint("Horizontal", 1, 3, 2, 1),
    Sketcher.Constraint("Vertical", 2, 3, 0, 1),
    Sketcher.Constraint("Vertical", 0, 1, 1, 1),
    Sketcher.Constraint("Radius", 0, Q("1 mm")),
    Sketcher.Constraint("DistanceX", -1, 1, 0, 3, Q("7 mm")),
    Sketcher.Constraint("DistanceY", 0, 3, -1, 1, Q("5 mm")),
])
sketch15.setExpression("Constraints[6]", "Params.sketch15_radius")
pad15 = body15.newObject("PartDesign::Pad", "Pad014")
pad15.Profile = sketch15
pad15.setExpression("Length", "Params.pad15_length")
pad15.Reversed = True
body16 = doc.addObject("PartDesign::Body", "Body015")

# Sketch on XZ plane
sketch16 = body16.newObject("Sketcher::SketchObject", "Sketch015")
sketch16.AttachmentSupport = (doc.getObject("XZ_Plane015"), [""])
sketch16.MapMode = "FlatFace"
sketch16.addGeometry([
    Part.ArcOfCircle(Part.Circle(App.Vector(5, -7, 0), App.Vector(0, 0, 1), 1), math.radians(0), math.radians(90)),
    Part.ArcOfCircle(Part.Circle(App.Vector(5, -7, 0), App.Vector(0, 0, 1), 1), math.radians(180), math.radians(360)),
    Part.ArcOfCircle(Part.Circle(App.Vector(5, -7, 0), App.Vector(0, 0, 1), 1), math.radians(90), math.radians(180)),
], False)
sketch16.addConstraint([
    Sketcher.Constraint("Tangent", 0, 1, 1, 2),
    Sketcher.Constraint("Tangent", 1, 1, 2, 2),
    Sketcher.Constraint("Tangent", 2, 1, 0, 2),
    Sketcher.Constraint("Horizontal", 2, 3, 0, 1),
    Sketcher.Constraint("Horizontal", 0, 1, 1, 1),
    Sketcher.Constraint("Vertical", 1, 3, 2, 1),
    Sketcher.Constraint("Radius", 0, Q("1 mm")),
    Sketcher.Constraint("DistanceX", -1, 1, 0, 3, Q("5 mm")),
    Sketcher.Constraint("DistanceY", 0, 3, -1, 1, Q("7 mm")),
])
sketch16.setExpression("Constraints[6]", "Params.sketch16_radius")
pad16 = body16.newObject("PartDesign::Pad", "Pad015")
pad16.Profile = sketch16
pad16.setExpression("Length", "Params.pad16_length")
pad16.Reversed = True
body17 = doc.addObject("PartDesign::Body", "Body016")

# Sketch on XZ plane
sketch17 = body17.newObject("Sketcher::SketchObject", "Sketch016")
sketch17.AttachmentSupport = (doc.getObject("XZ_Plane016"), [""])
sketch17.MapMode = "FlatFace"
sketch17.addGeometry([
    Part.ArcOfCircle(Part.Circle(App.Vector(7, -7, 0), App.Vector(0, 0, 1), 1), math.radians(90), math.radians(180)),
    Part.ArcOfCircle(Part.Circle(App.Vector(7, -7, 0), App.Vector(0, 0, 1), 1), math.radians(180), math.radians(450)),
], False)
sketch17.addConstraint([
    Sketcher.Constraint("Tangent", 0, 1, 1, 2),
    Sketcher.Constraint("Coincident", 1, 1, 0, 2),
    Sketcher.Constraint("Horizontal", 0, 3, 1, 1),
    Sketcher.Constraint("Vertical", 1, 3, 0, 1),
    Sketcher.Constraint("Radius", 0, Q("1 mm")),
    Sketcher.Constraint("DistanceX", -1, 1, 0, 3, Q("7 mm")),
    Sketcher.Constraint("DistanceY", 0, 3, -1, 1, Q("7 mm")),
])
sketch17.setExpression("Constraints[4]", "Params.sketch17_radius")
pad17 = body17.newObject("PartDesign::Pad", "Pad016")
pad17.Profile = sketch17
pad17.setExpression("Length", "Params.pad17_length")
pad17.Reversed = True

doc.recompute()
